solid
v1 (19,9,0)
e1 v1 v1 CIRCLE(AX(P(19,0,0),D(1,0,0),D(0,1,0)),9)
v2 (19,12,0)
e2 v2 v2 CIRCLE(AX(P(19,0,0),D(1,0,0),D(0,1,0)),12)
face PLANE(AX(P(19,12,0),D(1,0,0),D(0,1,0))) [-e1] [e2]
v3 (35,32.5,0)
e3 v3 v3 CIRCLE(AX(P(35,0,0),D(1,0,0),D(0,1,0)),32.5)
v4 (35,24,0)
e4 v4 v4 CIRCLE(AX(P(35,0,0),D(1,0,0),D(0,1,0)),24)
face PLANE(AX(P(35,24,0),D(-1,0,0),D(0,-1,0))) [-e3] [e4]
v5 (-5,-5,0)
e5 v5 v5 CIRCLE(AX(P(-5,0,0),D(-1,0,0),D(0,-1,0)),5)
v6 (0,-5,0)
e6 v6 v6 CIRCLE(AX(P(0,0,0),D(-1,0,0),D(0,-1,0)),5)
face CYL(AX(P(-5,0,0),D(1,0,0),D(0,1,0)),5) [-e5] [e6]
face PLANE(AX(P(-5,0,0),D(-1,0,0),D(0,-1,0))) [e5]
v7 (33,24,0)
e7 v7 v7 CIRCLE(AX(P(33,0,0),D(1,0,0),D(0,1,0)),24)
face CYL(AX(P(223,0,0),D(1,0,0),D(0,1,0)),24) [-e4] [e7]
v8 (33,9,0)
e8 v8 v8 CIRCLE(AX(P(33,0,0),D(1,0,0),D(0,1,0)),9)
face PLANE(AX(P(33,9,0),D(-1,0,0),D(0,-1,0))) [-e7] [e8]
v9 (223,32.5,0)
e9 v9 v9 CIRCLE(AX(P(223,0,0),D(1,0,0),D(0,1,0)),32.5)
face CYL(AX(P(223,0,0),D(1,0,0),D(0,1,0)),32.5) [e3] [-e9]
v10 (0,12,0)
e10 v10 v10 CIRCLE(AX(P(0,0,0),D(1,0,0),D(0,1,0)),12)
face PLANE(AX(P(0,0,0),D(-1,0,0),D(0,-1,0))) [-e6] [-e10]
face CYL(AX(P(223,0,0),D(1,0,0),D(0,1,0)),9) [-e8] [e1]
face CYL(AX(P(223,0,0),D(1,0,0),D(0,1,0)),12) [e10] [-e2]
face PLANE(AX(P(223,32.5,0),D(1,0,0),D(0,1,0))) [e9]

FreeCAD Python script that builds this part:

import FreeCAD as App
import Part
import Sketcher
Q = App.Units.Quantity


def add_polygon(sketch, points):
    """Adds a closed chain of lines whose ends are joined by coincident constraints."""
    first, n = sketch.GeometryCount, len(points)
    for a, b in zip(points, points[1:] + points[:1]):
        sketch.addGeometry(Part.LineSegment(App.Vector(*a, 0), App.Vector(*b, 0)), False)
    for i in range(n):
        sketch.addConstraint(Sketcher.Constraint("Coincident", first + i, 2, first + (i + 1) % n, 1))

doc = App.newDocument("Part")
body = doc.addObject("PartDesign::Body", "Body")

sketch1 = body.newObject("Sketcher::SketchObject", "Sketch")
sketch1.AttachmentSupport = (doc.getObject("XY_Plane"), [""])
sketch1.MapMode = "FlatFace"
add_polygon(sketch1, [(0, 12), (0, 0), (223, 0), (223, 32.5), (35, 32.5), (35, 24), (33, 24), (33, 9), (19, 9), (19, 12)])
sketch1.addConstraint(Sketcher.Constraint("Vertical", 0))
sketch1.addConstraint(Sketcher.Constraint("Horizontal", 1))
sketch1.addConstraint(Sketcher.Constraint("Vertical", 2))
sketch1.addConstraint(Sketcher.Constraint("Horizontal", 3))
sketch1.addConstraint(Sketcher.Constraint("Vertical", 4))
sketch1.addConstraint(Sketcher.Constraint("Horizontal", 5))
sketch1.addConstraint(Sketcher.Constraint("Vertical", 6))
sketch1.addConstraint(Sketcher.Constraint("Horizontal", 7))
sketch1.addConstraint(Sketcher.Constraint("Vertical", 8))
sketch1.addConstraint(Sketcher.Constraint("Horizontal", 9))
sketch1.addConstraint(Sketcher.Constraint("Coincident", 0, 2, -1, 1))
sketch1.addConstraint(Sketcher.Constraint("DistanceX", 1, 1, 1, 2, Q("223 mm")))
sketch1.addConstraint(Sketcher.Constraint("DistanceX", 3, 2, 3, 1, Q("188 mm")))
sketch1.addConstraint(Sketcher.Constraint("DistanceX", 5, 2, 5, 1, Q("2 mm")))
sketch1.addConstraint(Sketcher.Constraint("DistanceX", 7, 2, 7, 1, Q("14 mm")))
sketch1.addConstraint(Sketcher.Constraint("DistanceY", 0, 2, 0, 1, Q("12 mm")))
sketch1.addConstraint(Sketcher.Constraint("DistanceY", 6, 2, 6, 1, Q("15 mm")))
sketch1.addConstraint(Sketcher.Constraint("DistanceY", 8, 1, 8, 2, Q("3 mm")))
sketch1.addConstraint(Sketcher.Constraint("DistanceY", 2, 1, 2, 2, Q("32.5 mm")))
revolution = body.newObject("PartDesign::Revolution", "Revolution")
revolution.Profile = sketch1
revolution.ReferenceAxis = (sketch1, ["H_Axis"])
revolution.Angle = 360

sketch2 = body.newObject("Sketcher::SketchObject", "Sketch001")
sketch2.AttachmentSupport = (doc.getObject("YZ_Plane"), [""])
sketch2.MapMode = "FlatFace"
sketch2.addGeometry(Part.Circle(App.Vector(0, 0, 0), App.Vector(0, 0, 1), 5), False)
sketch2.addConstraint(Sketcher.Constraint("Coincident", 0, 3, -1, 1))
sketch2.addConstraint(Sketcher.Constraint("Diameter", 0, Q("10 mm")))
pad1 = body.newObject("PartDesign::Pad", "Pad")
pad1.Profile = sketch2
pad1.Length = 5
pad1.Reversed = True

doc.recompute()
